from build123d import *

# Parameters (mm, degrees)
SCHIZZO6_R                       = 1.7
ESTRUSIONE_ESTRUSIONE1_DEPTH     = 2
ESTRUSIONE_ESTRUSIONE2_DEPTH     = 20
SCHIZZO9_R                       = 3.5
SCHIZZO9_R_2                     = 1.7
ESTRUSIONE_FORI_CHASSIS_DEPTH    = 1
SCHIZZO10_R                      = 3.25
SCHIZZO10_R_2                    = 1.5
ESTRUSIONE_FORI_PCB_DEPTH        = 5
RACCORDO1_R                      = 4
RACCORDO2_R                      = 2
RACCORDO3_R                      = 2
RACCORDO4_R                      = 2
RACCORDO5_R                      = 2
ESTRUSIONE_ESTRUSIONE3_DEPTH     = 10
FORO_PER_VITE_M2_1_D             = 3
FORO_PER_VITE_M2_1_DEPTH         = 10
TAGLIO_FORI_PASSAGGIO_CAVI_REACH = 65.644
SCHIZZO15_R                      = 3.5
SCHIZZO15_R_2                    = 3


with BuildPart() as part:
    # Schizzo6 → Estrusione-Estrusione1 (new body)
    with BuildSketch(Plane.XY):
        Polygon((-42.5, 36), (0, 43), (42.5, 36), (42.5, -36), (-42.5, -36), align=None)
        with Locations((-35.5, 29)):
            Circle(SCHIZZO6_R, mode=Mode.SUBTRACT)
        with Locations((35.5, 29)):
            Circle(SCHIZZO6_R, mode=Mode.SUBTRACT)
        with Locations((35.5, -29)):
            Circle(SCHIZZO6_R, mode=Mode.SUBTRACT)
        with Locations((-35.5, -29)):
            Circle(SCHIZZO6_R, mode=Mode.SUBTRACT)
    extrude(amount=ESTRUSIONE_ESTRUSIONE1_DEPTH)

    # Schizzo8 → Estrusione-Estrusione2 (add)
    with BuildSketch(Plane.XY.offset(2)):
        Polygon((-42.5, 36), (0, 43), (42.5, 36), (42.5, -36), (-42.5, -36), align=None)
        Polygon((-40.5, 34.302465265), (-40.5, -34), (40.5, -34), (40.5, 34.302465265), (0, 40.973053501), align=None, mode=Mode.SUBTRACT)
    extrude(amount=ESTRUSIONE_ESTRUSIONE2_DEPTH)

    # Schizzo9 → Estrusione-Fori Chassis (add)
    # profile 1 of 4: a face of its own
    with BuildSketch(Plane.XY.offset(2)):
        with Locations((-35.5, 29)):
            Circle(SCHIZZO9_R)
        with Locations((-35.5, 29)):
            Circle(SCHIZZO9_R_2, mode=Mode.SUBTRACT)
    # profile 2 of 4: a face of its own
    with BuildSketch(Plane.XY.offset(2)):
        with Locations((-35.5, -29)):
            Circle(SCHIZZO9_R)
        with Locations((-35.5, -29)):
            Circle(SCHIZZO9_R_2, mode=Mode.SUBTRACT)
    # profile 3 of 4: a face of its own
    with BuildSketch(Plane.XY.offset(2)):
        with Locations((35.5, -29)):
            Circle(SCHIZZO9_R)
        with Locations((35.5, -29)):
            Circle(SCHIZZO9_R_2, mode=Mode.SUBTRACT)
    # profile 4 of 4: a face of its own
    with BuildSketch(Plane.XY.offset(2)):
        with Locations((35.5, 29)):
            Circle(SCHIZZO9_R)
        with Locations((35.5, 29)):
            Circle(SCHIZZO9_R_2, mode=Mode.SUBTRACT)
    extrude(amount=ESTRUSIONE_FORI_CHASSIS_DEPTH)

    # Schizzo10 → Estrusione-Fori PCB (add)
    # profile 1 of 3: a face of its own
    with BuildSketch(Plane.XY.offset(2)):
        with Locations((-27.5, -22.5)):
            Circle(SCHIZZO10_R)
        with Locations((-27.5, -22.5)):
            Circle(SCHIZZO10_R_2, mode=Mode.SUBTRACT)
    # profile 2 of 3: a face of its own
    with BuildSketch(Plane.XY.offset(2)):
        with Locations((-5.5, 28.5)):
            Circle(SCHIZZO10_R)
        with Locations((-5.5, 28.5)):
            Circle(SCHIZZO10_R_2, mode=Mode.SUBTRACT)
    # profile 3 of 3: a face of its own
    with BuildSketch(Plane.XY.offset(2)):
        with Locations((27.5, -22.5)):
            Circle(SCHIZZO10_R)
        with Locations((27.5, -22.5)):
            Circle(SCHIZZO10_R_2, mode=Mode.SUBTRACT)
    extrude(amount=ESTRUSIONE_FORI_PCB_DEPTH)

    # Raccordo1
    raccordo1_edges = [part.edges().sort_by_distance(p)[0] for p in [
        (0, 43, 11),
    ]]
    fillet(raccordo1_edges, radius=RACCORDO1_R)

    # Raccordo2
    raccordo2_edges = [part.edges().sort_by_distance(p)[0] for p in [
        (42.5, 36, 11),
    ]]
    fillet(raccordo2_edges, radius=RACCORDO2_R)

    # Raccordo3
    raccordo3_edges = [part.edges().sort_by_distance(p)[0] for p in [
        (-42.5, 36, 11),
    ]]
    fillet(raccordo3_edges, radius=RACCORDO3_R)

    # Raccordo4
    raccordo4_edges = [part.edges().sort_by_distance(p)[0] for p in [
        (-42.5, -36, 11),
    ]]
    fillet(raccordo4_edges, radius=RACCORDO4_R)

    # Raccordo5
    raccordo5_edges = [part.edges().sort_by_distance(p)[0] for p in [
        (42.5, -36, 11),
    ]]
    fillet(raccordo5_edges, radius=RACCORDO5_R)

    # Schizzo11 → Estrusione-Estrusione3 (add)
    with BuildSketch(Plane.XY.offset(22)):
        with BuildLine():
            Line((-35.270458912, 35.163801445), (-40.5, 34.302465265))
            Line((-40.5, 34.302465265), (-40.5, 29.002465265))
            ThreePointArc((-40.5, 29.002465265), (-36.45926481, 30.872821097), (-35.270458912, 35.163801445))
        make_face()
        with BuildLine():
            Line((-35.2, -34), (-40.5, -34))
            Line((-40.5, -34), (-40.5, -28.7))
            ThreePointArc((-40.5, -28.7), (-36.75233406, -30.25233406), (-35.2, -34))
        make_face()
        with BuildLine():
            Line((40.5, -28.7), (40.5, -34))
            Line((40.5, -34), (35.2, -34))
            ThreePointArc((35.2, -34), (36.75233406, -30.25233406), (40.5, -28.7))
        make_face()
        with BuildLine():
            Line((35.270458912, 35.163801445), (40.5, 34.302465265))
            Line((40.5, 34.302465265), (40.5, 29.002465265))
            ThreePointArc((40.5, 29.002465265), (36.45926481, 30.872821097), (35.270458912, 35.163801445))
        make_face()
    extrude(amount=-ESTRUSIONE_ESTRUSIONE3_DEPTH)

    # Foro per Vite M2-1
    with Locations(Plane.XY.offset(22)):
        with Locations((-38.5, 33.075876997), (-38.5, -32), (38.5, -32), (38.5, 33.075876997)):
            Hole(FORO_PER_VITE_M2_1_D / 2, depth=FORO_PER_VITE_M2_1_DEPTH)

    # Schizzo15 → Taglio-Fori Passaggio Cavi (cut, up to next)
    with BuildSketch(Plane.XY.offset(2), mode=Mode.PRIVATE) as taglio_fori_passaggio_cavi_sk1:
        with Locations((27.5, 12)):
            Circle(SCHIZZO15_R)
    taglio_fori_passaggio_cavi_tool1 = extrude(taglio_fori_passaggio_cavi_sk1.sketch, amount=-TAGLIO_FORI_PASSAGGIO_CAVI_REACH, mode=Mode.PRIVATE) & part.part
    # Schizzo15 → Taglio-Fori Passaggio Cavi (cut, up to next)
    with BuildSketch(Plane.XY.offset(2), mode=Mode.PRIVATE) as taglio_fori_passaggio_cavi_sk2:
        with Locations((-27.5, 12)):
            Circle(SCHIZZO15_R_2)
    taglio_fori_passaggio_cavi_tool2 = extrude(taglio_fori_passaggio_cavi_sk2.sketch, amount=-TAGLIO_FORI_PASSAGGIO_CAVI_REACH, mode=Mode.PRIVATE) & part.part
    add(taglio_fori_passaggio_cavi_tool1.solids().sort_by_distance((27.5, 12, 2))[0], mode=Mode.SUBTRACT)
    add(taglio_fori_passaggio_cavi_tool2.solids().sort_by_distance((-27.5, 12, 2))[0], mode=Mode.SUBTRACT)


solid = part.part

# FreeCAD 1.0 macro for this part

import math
import FreeCAD as App
import Part
import Sketcher


def edges_at(feature, points):
    """Names of the edges that pass closest to the given points."""
    edges = feature.Shape.Edges
    near = lambda p: min(range(len(edges)), key=lambda i: edges[i].distToShape(Part.Vertex(*p))[0])
    return sorted({f"Edge{near(p) + 1}" for p in points})

doc = App.newDocument("Part")
params = doc.addObject("Spreadsheet::Sheet", "Params")
for row, (alias, value) in enumerate([
    ("sketch1_diameter", "3.4 mm"),
    ("sketch1_width", "85 mm"),
    ("sketch1_height", "72 mm"),
    ("pad1_length", "2 mm"),
    ("sketch2_width", "85 mm"),
    ("sketch2_width2", "81 mm"),
    ("sketch2_height", "72 mm"),
    ("pad2_length", "20 mm"),
    ("sketch3_diameter", "7 mm"),
    ("sketch3_diameter2", "3.4 mm"),
    ("pad3_length", "1 mm"),
    ("sketch4_diameter", "3 mm"),
    ("sketch4_diameter2", "6.5 mm"),
    ("pad4_length", "5 mm"),
    ("fillet_radius", "4 mm"),
    ("fillet2_radius", "2 mm"),
    ("fillet3_radius", "2 mm"),
    ("fillet4_radius", "2 mm"),
    ("fillet5_radius", "2 mm"),
    ("sketch5_radius", "5.3 mm"),
    ("pad5_length", "10 mm"),
    ("sketch6_diameter", "3 mm"),
    ("hole_diameter", "3 mm"),
    ("hole_depth", "10 mm"),
    ("sketch7_diameter", "7 mm"),
    ("sketch8_diameter", "6 mm"),
], start=1):
    params.set(f"A{row}", alias)
    params.set(f"B{row}", "=" + value)
    params.setAlias(f"B{row}", alias)

body = doc.addObject("PartDesign::Body", "Body")

sketch1 = body.newObject("Sketcher::SketchObject", "Sketch")
sketch1.AttachmentSupport = (doc.getObject("XY_Plane"), [""])
sketch1.MapMode = "FlatFace"
sketch1.addGeometry([
    Part.LineSegment(App.Vector(0, 43, 0), App.Vector(-42.5, 36, 0)),
    Part.LineSegment(App.Vector(-42.5, 36, 0), App.Vector(-42.5, -36, 0)),
    Part.LineSegment(App.Vector(-42.5, -36, 0), App.Vector(42.5, -36, 0)),
    Part.LineSegment(App.Vector(42.5, -36, 0), App.Vector(42.5, 36, 0)),
    Part.LineSegment(App.Vector(42.5, 36, 0), App.Vector(0, 43, 0)),
    Part.Circle(App.Vector(35.5, -29, 0), App.Vector(0, 0, 1), 1.7),
    Part.Circle(App.Vector(-35.5, -29, 0), App.Vector(0, 0, 1), 1.7),
    Part.Circle(App.Vector(35.5, 29, 0), App.Vector(0, 0, 1), 1.7),
    Part.Circle(App.Vector(-35.5, 29, 0), App.Vector(0, 0, 1), 1.7),
], False)
sketch1.addConstraint([
    Sketcher.Constraint("Coincident", 0, 2, 1, 1),
    Sketcher.Constraint("Coincident", 1, 2, 2, 1),
    Sketcher.Constraint("Coincident", 2, 2, 3, 1),
    Sketcher.Constraint("Coincident", 3, 2, 4, 1),
    Sketcher.Constraint("Coincident", 4, 2, 0, 1),
    Sketcher.Constraint("Vertical", 1),
    Sketcher.Constraint("Horizontal", 2),
    Sketcher.Constraint("Vertical", 3),
    Sketcher.Constraint("Equal", 5, 6),
    Sketcher.Constraint("Equal", 6, 7),
    Sketcher.Constraint("Equal", 7, 8),
    Sketcher.Constraint("Symmetric", 6, 3, 7, 3, -1, 1),
    Sketcher.Constraint("Symmetric", 5, 3, 8, 3, -1, 1),
    Sketcher.Constraint("Symmetric", 0, 2, 2, 2, -1, 1),
    Sketcher.Constraint("Symmetric", 5, 3, 6, 3, -2),
    Sketcher.Constraint("PointOnObject", 4, 2, -2),
    Sketcher.Constraint("Horizontal", 0, 2, 3, 2),
    Sketcher.Constraint("Diameter", 5, 3.4),
    Sketcher.Constraint("DistanceX", 2, 1, 2, 2, 85.0),
    Sketcher.Constraint("DistanceY", 1, 2, 1, 1, 72.0),
    Sketcher.Constraint("DistanceY", 5, 3, -1, 1, 29.0),
    Sketcher.Constraint("DistanceY", -1, 1, 4, 2, 43.0),
    Sketcher.Constraint("DistanceX", 6, 3, 5, 3, 71.0),
])
sketch1.setExpression("Constraints[17]", "Params.sketch1_diameter")
sketch1.setExpression("Constraints[18]", "Params.sketch1_width")
sketch1.setExpression("Constraints[19]", "Params.sketch1_height")
pad1 = body.newObject("PartDesign::Pad", "Pad")
pad1.Profile = sketch1
pad1.setExpression("Length", "Params.pad1_length")

sketch2 = body.newObject("Sketcher::SketchObject", "Sketch001")
sketch2.AttachmentSupport = (doc.getObject("XY_Plane"), [""])
sketch2.MapMode = "FlatFace"
sketch2.AttachmentOffset = App.Placement(App.Vector(0, 0, 2), App.Rotation())
sketch2.addGeometry([
    Part.LineSegment(App.Vector(0, 43, 0), App.Vector(-42, 36, 0)),
    Part.LineSegment(App.Vector(-42, 36, 0), App.Vector(-42, -36, 0)),
    Part.LineSegment(App.Vector(-42, -36, 0), App.Vector(42, -36, 0)),
    Part.LineSegment(App.Vector(42, -36, 0), App.Vector(42, 36, 0)),
    Part.LineSegment(App.Vector(42, 36, 0), App.Vector(0, 43, 0)),
    Part.LineSegment(App.Vector(-40, 34, 0), App.Vector(0, 41, 0)),
    Part.LineSegment(App.Vector(0, 41, 0), App.Vector(40, 34, 0)),
    Part.LineSegment(App.Vector(40, 34, 0), App.Vector(40, -34, 0)),
    Part.LineSegment(App.Vector(40, -34, 0), App.Vector(-40, -34, 0)),
    Part.LineSegment(App.Vector(-40, -34, 0), App.Vector(-40, 34, 0)),
], False)
sketch2.addConstraint([
    Sketcher.Constraint("Coincident", 0, 2, 1, 1),
    Sketcher.Constraint("Coincident", 1, 2, 2, 1),
    Sketcher.Constraint("Coincident", 2, 2, 3, 1),
    Sketcher.Constraint("Coincident", 3, 2, 4, 1),
    Sketcher.Constraint("Coincident", 4, 2, 0, 1),
    Sketcher.Constraint("Coincident", 5, 2, 6, 1),
    Sketcher.Constraint("Coincident", 6, 2, 7, 1),
    Sketcher.Constraint("Coincident", 7, 2, 8, 1),
    Sketcher.Constraint("Coincident", 8, 2, 9, 1),
    Sketcher.Constraint("Coincident", 9, 2, 5, 1),
    Sketcher.Constraint("Vertical", 1),
    Sketcher.Constraint("Horizontal", 2),
    Sketcher.Constraint("Vertical", 3),
    Sketcher.Constraint("Vertical", 7),
    Sketcher.Constraint("Horizontal", 8),
    Sketcher.Constraint("Vertical", 9),
    Sketcher.Constraint("Symmetric", 0, 2, 2, 2, -1, 1),
    Sketcher.Constraint("Symmetric", 6, 2, 9, 2, -2),
    Sketcher.Constraint("PointOnObject", 4, 2, -2),
    Sketcher.Constraint("PointOnObject", 5, 2, -2),
    Sketcher.Constraint("Parallel", 0, 5),
    Sketcher.Constraint("Parallel", 4, 6),
    Sketcher.Constraint("DistanceX", 2, 1, 2, 2, 85.0),
    Sketcher.Constraint("DistanceX", 8, 2, 8, 1, 81.0),
    Sketcher.Constraint("DistanceY", 1, 2, 1, 1, 72.0),
    Sketcher.Constraint("DistanceY", -1, 1, 4, 2, 43.0),
    Sketcher.Constraint("DistanceY", 7, 2, -1, 1, 34.0),
    Sketcher.Constraint("DistanceY", 7, 2, 7, 1, 68.302465),
])
sketch2.setExpression("Constraints[22]", "Params.sketch2_width")
sketch2.setExpression("Constraints[23]", "Params.sketch2_width2")
sketch2.setExpression("Constraints[24]", "Params.sketch2_height")
pad2 = body.newObject("PartDesign::Pad", "Pad001")
pad2.Profile = sketch2
pad2.setExpression("Length", "Params.pad2_length")

sketch3 = body.newObject("Sketcher::SketchObject", "Sketch002")
sketch3.AttachmentSupport = (doc.getObject("XY_Plane"), [""])
sketch3.MapMode = "FlatFace"
sketch3.AttachmentOffset = App.Placement(App.Vector(0, 0, 2), App.Rotation())
sketch3.addGeometry([
    Part.Circle(App.Vector(-35.5, 29, 0), App.Vector(0, 0, 1), 3.5),
    Part.Circle(App.Vector(-35.5, 29, 0), App.Vector(0, 0, 1), 1.7),
    Part.Circle(App.Vector(-35.5, -29, 0), App.Vector(0, 0, 1), 3.5),
    Part.Circle(App.Vector(-35.5, -29, 0), App.Vector(0, 0, 1), 1.7),
    Part.Circle(App.Vector(35.5, -29, 0), App.Vector(0, 0, 1), 3.5),
    Part.Circle(App.Vector(35.5, -29, 0), App.Vector(0, 0, 1), 1.7),
    Part.Circle(App.Vector(35.5, 29, 0), App.Vector(0, 0, 1), 3.5),
    Part.Circle(App.Vector(35.5, 29, 0), App.Vector(0, 0, 1), 1.7),
], False)
sketch3.addConstraint([
    Sketcher.Constraint("Coincident", 1, 3, 0, 3),
    Sketcher.Constraint("Coincident", 3, 3, 2, 3),
    Sketcher.Constraint("Coincident", 5, 3, 4, 3),
    Sketcher.Constraint("Coincident", 7, 3, 6, 3),
    Sketcher.Constraint("Equal", 0, 2),
    Sketcher.Constraint("Equal", 1, 3),
    Sketcher.Constraint("Equal", 2, 4),
    Sketcher.Constraint("Equal", 3, 5),
    Sketcher.Constraint("Equal", 4, 6),
    Sketcher.Constraint("Equal", 5, 7),
    Sketcher.Constraint("Symmetric", 0, 3, 4, 3, -1, 1),
    Sketcher.Constraint("Symmetric", 2, 3, 6, 3, -1, 1),
    Sketcher.Constraint("Symmetric", 2, 3, 4, 3, -2),
    Sketcher.Constraint("Diameter", 0, 7.0),
    Sketcher.Constraint("Diameter", 1, 3.4),
    Sketcher.Constraint("DistanceY", -1, 1, 0, 3, 29.0),
    Sketcher.Constraint("DistanceX", 2, 3, 4, 3, 71.0),
])
sketch3.setExpression("Constraints[13]", "Params.sketch3_diameter")
sketch3.setExpression("Constraints[14]", "Params.sketch3_diameter2")
pad3 = body.newObject("PartDesign::Pad", "Pad002")
pad3.Profile = sketch3
pad3.setExpression("Length", "Params.pad3_length")

sketch4 = body.newObject("Sketcher::SketchObject", "Sketch003")
sketch4.AttachmentSupport = (doc.getObject("XY_Plane"), [""])
sketch4.MapMode = "FlatFace"
sketch4.AttachmentOffset = App.Placement(App.Vector(0, 0, 2), App.Rotation())
sketch4.addGeometry([
    Part.Circle(App.Vector(-27.5, -22.5, 0), App.Vector(0, 0, 1), 3.2),
    Part.Circle(App.Vector(-27.5, -22.5, 0), App.Vector(0, 0, 1), 1.5),
    Part.Circle(App.Vector(-5.5, 28.5, 0), App.Vector(0, 0, 1), 3.2),
    Part.Circle(App.Vector(-5.5, 28.5, 0), App.Vector(0, 0, 1), 1.5),
    Part.Circle(App.Vector(27.5, -22.5, 0), App.Vector(0, 0, 1), 3.2),
    Part.Circle(App.Vector(27.5, -22.5, 0), App.Vector(0, 0, 1), 1.5),
], False)
sketch4.addConstraint([
    Sketcher.Constraint("Coincident", 1, 3, 0, 3),
    Sketcher.Constraint("Coincident", 3, 3, 2, 3),
    Sketcher.Constraint("Coincident", 5, 3, 4, 3),
    Sketcher.Constraint("Equal", 0, 2),
    Sketcher.Constraint("Equal", 1, 3),
    Sketcher.Constraint("Equal", 2, 4),
    Sketcher.Constraint("Equal", 3, 5),
    Sketcher.Constraint("Symmetric", 0, 3, 4, 3, -2),
    Sketcher.Constraint("Diameter", 1, 3.0),
    Sketcher.Constraint("Diameter", 0, 6.5),
    Sketcher.Constraint("DistanceX", 0, 3, 2, 3, 22.0),
    Sketcher.Constraint("DistanceY", 0, 3, 2, 3, 51.0),
    Sketcher.Constraint("DistanceX", 0, 3, 4, 3, 55.0),
    Sketcher.Constraint("DistanceY", 0, 3, -1, 1, 22.5),
])
sketch4.setExpression("Constraints[8]", "Params.sketch4_diameter")
sketch4.setExpression("Constraints[9]", "Params.sketch4_diameter2")
pad4 = body.newObject("PartDesign::Pad", "Pad003")
pad4.Profile = sketch4
pad4.setExpression("Length", "Params.pad4_length")
doc.recompute()

fillet = body.newObject("PartDesign::Fillet", "Fillet")
fillet.Base = (pad4, edges_at(pad4, [(0, 43, 11)]))
fillet.setExpression("Radius", "Params.fillet_radius")
doc.recompute()

fillet2 = body.newObject("PartDesign::Fillet", "Fillet001")
fillet2.Base = (fillet, edges_at(fillet, [(42.5, 36, 11)]))
fillet2.setExpression("Radius", "Params.fillet2_radius")
doc.recompute()

fillet3 = body.newObject("PartDesign::Fillet", "Fillet002")
fillet3.Base = (fillet2, edges_at(fillet2, [(-42.5, 36, 11)]))
fillet3.setExpression("Radius", "Params.fillet3_radius")
doc.recompute()

fillet4 = body.newObject("PartDesign::Fillet", "Fillet003")
fillet4.Base = (fillet3, edges_at(fillet3, [(-42.5, -36, 11)]))
fillet4.setExpression("Radius", "Params.fillet4_radius")
doc.recompute()

fillet5 = body.newObject("PartDesign::Fillet", "Fillet004")
fillet5.Base = (fillet4, edges_at(fillet4, [(42.5, -36, 11)]))
fillet5.setExpression("Radius", "Params.fillet5_radius")

sketch5 = body.newObject("Sketcher::SketchObject", "Sketch004")
sketch5.AttachmentSupport = (doc.getObject("XY_Plane"), [""])
sketch5.MapMode = "FlatFace"
sketch5.AttachmentOffset = App.Placement(App.Vector(0, 0, 22), App.Rotation())
sketch5.addGeometry([
    Part.LineSegment(App.Vector(-35, 35, 0), App.Vector(-40, 34, 0)),
    Part.LineSegment(App.Vector(-40, 34, 0), App.Vector(-40, 29, 0)),
    Part.ArcOfCircle(Part.Circle(App.Vector(-41, 34, 0), App.Vector(0, 0, 1), 5), math.radians(-90), math.radians(9)),
    Part.LineSegment(App.Vector(-40, -34, 0), App.Vector(-35, -34, 0)),
    Part.ArcOfCircle(Part.Circle(App.Vector(-41, -34, 0), App.Vector(0, 0, 1), 5), math.radians(0), math.radians(90)),
    Part.LineSegment(App.Vector(-40, -29, 0), App.Vector(-40, -34, 0)),
    Part.LineSegment(App.Vector(40, -34, 0), App.Vector(40, -29, 0)),
    Part.ArcOfCircle(Part.Circle(App.Vector(41, -34, 0), App.Vector(0, 0, 1), 5), math.radians(90), math.radians(180)),
    Part.LineSegment(App.Vector(35, -34, 0), App.Vector(40, -34, 0)),
    Part.LineSegment(App.Vector(40, 34, 0), App.Vector(35, 35, 0)),
    Part.ArcOfCircle(Part.Circle(App.Vector(41, 34, 0), App.Vector(0, 0, 1), 5), math.radians(171), math.radians(270)),
    Part.LineSegment(App.Vector(40, 29, 0), App.Vector(40, 34, 0)),
], False)
sketch5.addConstraint([
    Sketcher.Constraint("Coincident", 0, 2, 1, 1),
    Sketcher.Constraint("Coincident", 1, 2, 2, 1),
    Sketcher.Constraint("Coincident", 2, 2, 0, 1),
    Sketcher.Constraint("Coincident", 3, 2, 4, 1),
    Sketcher.Constraint("Coincident", 4, 2, 5, 1),
    Sketcher.Constraint("Coincident", 5, 2, 3, 1),
    Sketcher.Constraint("Coincident", 6, 2, 7, 1),
    Sketcher.Constraint("Coincident", 7, 2, 8, 1),
    Sketcher.Constraint("Coincident", 8, 2, 6, 1),
    Sketcher.Constraint("Coincident", 9, 2, 10, 1),
    Sketcher.Constraint("Coincident", 10, 2, 11, 1),
    Sketcher.Constraint("Coincident", 11, 2, 9, 1),
    Sketcher.Constraint("Vertical", 1),
    Sketcher.Constraint("Horizontal", 3),
    Sketcher.Constraint("Vertical", 5),
    Sketcher.Constraint("Vertical", 6),
    Sketcher.Constraint("Horizontal", 8),
    Sketcher.Constraint("Vertical", 11),
    Sketcher.Constraint("Coincident", 0, 2, 2, 3),
    Sketcher.Constraint("Coincident", 5, 2, 4, 3),
    Sketcher.Constraint("Coincident", 8, 2, 7, 3),
    Sketcher.Constraint("Coincident", 11, 2, 10, 3),
    Sketcher.Constraint("Equal", 2, 4),
    Sketcher.Constraint("Equal", 4, 7),
    Sketcher.Constraint("Equal", 7, 10),
    Sketcher.Constraint("Symmetric", 4, 3, 7, 3, -2),
    Sketcher.Constraint("Symmetric", 2, 3, 10, 3, -2),
    Sketcher.Constraint("Horizontal", 2, 2, 9, 2),
    Sketcher.Constraint("Vertical", 2, 3, 4, 3),
    Sketcher.Constraint("Radius", 2, 5.3),
    Sketcher.Constraint("DistanceY", 4, 3, -1, 1, 34.0),
    Sketcher.Constraint("DistanceX", 4, 3, 7, 3, 81.0),
    Sketcher.Constraint("DistanceY", -1, 1, 2, 2, 35.163801),
    Sketcher.Constraint("DistanceX", 2, 2, -1, 1, 35.270459),
])
sketch5.setExpression("Constraints[29]", "Params.sketch5_radius")
pad5 = body.newObject("PartDesign::Pad", "Pad004")
pad5.Profile = sketch5
pad5.setExpression("Length", "Params.pad5_length")
pad5.Reversed = True

sketch6 = body.newObject("Sketcher::SketchObject", "Sketch005")
sketch6.AttachmentSupport = (doc.getObject("XY_Plane"), [""])
sketch6.MapMode = "FlatFace"
sketch6.AttachmentOffset = App.Placement(App.Vector(0, 0, 22), App.Rotation())
sketch6.addGeometry([
    Part.Circle(App.Vector(-38.5, 33.1, 0), App.Vector(0, 0, 1), 1.5),
    Part.Circle(App.Vector(-38.5, -32, 0), App.Vector(0, 0, 1), 1.5),
    Part.Circle(App.Vector(38.5, -32, 0), App.Vector(0, 0, 1), 1.5),
    Part.Circle(App.Vector(38.5, 33.1, 0), App.Vector(0, 0, 1), 1.5),
], False)
sketch6.addConstraint([
    Sketcher.Constraint("Equal", 0, 1),
    Sketcher.Constraint("Equal", 1, 2),
    Sketcher.Constraint("Equal", 2, 3),
    Sketcher.Constraint("Symmetric", 1, 3, 2, 3, -2),
    Sketcher.Constraint("Symmetric", 0, 3, 3, 3, -2),
    Sketcher.Constraint("Vertical", 0, 3, 1, 3),
    Sketcher.Constraint("Diameter", 0, 3.0),
    Sketcher.Constraint("DistanceY", 1, 3, -1, 1, 32.0),
    Sketcher.Constraint("DistanceX", 1, 3, 2, 3, 77.0),
    Sketcher.Constraint("DistanceY", -1, 1, 0, 3, 33.075877),
])
sketch6.setExpression("Constraints[6]", "Params.sketch6_diameter")
doc.recompute()
hole = body.newObject("PartDesign::Hole", "Hole")
hole.Profile = sketch6
hole.ThreadType = "None"
hole.setExpression("Diameter", "Params.hole_diameter")
hole.DepthType = "Dimension"
hole.setExpression("Depth", "Params.hole_depth")
hole.DrillPoint = "Flat"

sketch7 = body.newObject("Sketcher::SketchObject", "Sketch006")
sketch7.AttachmentSupport = (doc.getObject("XY_Plane"), [""])
sketch7.MapMode = "FlatFace"
sketch7.AttachmentOffset = App.Placement(App.Vector(0, 0, 2), App.Rotation())
sketch7.addGeometry(Part.Circle(App.Vector(27.5, 12, 0), App.Vector(0, 0, 1), 3.5), False)
sketch7.addConstraint([
    Sketcher.Constraint("Diameter", 0, 7.0),
    Sketcher.Constraint("DistanceY", -1, 1, 0, 3, 12.0),
    Sketcher.Constraint("DistanceX", -1, 1, 0, 3, 27.5),
])
sketch7.setExpression("Constraints[0]", "Params.sketch7_diameter")
pocket1 = body.newObject("PartDesign::Pocket", "Pocket")
pocket1.Profile = sketch7
pocket1.Type = "UpToFirst"

sketch8 = body.newObject("Sketcher::SketchObject", "Sketch007")
sketch8.AttachmentSupport = (doc.getObject("XY_Plane"), [""])
sketch8.MapMode = "FlatFace"
sketch8.AttachmentOffset = App.Placement(App.Vector(0, 0, 2), App.Rotation())
sketch8.addGeometry(Part.Circle(App.Vector(-27.5, 12, 0), App.Vector(0, 0, 1), 3), False)
sketch8.addConstraint([
    Sketcher.Constraint("Diameter", 0, 6.0),
    Sketcher.Constraint("DistanceY", -1, 1, 0, 3, 12.0),
    Sketcher.Constraint("DistanceX", 0, 3, -1, 1, 27.5),
])
sketch8.setExpression("Constraints[0]", "Params.sketch8_diameter")
pocket2 = body.newObject("PartDesign::Pocket", "Pocket001")
pocket2.Profile = sketch8
pocket2.Type = "UpToFirst"

doc.recompute()
